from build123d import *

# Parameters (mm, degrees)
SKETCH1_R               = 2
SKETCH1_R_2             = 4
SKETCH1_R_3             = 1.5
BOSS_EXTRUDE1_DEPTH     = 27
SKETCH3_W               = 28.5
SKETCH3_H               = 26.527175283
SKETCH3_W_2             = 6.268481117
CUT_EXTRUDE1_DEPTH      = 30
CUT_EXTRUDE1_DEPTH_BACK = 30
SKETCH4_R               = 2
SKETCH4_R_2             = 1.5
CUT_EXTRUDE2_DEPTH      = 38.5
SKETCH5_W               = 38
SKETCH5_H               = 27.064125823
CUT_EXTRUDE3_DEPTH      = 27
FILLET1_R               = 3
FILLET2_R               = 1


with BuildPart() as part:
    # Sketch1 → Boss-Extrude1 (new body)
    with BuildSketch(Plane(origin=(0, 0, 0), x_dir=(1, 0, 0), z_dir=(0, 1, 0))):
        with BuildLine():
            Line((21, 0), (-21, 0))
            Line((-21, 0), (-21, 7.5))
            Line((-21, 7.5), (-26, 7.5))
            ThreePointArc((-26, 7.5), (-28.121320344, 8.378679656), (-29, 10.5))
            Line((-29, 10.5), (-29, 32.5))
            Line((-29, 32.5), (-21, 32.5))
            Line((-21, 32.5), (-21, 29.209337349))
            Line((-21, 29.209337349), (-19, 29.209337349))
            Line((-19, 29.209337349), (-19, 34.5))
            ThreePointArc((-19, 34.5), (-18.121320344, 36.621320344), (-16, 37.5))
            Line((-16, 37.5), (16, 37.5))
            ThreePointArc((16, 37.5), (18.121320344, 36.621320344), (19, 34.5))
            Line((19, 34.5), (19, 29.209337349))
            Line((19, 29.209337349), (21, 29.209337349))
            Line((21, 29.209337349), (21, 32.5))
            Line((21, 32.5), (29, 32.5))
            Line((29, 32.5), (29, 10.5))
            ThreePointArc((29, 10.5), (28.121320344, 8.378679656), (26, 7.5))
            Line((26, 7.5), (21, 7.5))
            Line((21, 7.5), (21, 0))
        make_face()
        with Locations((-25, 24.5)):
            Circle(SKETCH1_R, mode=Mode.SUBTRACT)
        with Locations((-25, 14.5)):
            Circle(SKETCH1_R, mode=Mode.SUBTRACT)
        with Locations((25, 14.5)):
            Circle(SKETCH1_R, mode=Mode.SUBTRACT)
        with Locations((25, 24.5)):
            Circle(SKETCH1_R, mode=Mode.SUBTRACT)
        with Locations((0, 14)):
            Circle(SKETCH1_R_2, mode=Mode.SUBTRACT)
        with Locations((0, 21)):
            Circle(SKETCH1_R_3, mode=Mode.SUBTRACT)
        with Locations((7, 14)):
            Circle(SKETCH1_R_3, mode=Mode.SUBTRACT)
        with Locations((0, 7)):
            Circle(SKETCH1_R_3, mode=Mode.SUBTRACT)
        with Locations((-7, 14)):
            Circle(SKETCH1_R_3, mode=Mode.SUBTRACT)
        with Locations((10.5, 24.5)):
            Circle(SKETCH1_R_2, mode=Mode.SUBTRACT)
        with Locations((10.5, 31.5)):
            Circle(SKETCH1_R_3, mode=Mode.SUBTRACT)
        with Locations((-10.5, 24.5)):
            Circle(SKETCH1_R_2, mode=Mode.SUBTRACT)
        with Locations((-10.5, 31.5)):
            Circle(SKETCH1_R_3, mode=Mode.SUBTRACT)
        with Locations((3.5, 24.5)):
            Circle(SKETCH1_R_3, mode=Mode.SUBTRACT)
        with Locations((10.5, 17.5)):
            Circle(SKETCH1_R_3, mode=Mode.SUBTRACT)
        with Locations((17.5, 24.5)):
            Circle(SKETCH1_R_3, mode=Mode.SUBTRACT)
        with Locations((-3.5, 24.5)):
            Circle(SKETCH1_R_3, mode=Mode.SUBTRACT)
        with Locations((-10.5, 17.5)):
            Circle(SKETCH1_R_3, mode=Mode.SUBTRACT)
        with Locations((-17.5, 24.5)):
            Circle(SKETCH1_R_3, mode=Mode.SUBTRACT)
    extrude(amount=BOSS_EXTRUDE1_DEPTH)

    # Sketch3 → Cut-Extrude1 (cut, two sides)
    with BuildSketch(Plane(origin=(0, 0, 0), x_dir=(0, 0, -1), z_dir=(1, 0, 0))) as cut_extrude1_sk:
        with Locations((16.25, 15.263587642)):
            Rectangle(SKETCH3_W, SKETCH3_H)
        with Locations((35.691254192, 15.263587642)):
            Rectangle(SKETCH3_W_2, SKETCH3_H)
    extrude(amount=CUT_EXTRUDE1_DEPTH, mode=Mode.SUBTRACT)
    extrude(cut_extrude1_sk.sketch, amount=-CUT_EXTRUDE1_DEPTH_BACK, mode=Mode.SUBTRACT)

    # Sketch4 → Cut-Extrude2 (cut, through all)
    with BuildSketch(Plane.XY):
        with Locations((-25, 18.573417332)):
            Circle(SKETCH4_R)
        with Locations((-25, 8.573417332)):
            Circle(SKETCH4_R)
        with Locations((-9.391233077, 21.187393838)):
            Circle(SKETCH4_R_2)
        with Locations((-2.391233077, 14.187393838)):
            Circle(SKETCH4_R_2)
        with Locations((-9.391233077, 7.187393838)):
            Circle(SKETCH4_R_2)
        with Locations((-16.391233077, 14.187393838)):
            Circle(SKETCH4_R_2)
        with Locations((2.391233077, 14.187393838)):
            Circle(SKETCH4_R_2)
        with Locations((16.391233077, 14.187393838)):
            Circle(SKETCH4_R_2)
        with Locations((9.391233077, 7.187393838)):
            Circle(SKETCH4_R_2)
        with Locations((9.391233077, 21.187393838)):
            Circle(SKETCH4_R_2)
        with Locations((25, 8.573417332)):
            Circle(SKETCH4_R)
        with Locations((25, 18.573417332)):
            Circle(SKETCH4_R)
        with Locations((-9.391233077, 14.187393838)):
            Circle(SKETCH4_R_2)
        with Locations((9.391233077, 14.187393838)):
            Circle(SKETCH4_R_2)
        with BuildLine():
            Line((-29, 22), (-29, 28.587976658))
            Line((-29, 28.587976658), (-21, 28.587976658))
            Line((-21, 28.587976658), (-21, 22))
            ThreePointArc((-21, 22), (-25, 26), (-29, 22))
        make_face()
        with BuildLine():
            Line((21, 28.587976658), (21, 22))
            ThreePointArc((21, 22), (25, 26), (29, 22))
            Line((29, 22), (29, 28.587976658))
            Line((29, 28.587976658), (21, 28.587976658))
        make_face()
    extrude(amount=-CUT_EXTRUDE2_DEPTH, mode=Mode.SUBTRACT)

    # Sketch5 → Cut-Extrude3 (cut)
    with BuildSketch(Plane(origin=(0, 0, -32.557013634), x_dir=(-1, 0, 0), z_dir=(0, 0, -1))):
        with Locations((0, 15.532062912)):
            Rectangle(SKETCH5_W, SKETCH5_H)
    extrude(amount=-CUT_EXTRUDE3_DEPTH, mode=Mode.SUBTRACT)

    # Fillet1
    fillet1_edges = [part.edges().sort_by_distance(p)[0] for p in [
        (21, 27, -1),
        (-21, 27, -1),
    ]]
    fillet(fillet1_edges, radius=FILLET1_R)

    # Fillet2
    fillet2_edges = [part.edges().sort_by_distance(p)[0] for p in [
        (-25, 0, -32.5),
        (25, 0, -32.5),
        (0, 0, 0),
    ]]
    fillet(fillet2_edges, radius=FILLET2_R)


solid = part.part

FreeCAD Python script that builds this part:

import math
import FreeCAD as App
import Part
import Sketcher
Q = App.Units.Quantity


def edges_at(feature, points):
    """Names of the edges that pass closest to the given points."""
    edges = feature.Shape.Edges
    near = lambda p: min(range(len(edges)), key=lambda i: edges[i].distToShape(Part.Vertex(*p))[0])
    return sorted({f"Edge{near(p) + 1}" for p in points})

doc = App.newDocument("Part")
body = doc.addObject("PartDesign::Body", "Body")

sketch1 = doc.addObject("Sketcher::SketchObject", "Sketch")
body.addObject(sketch1)
sketch1.AttachmentSupport = (doc.XZ_Plane, [""])
sketch1.MapMode = "FlatFace"
sketch1.addGeometry([
    Part.LineSegment(App.Vector(-21, 0, 0), App.Vector(21, 0, 0)),
    Part.LineSegment(App.Vector(21, 0, 0), App.Vector(21, -7.5, 0)),
    Part.LineSegment(App.Vector(21, -7.5, 0), App.Vector(26, -7.5, 0)),
    Part.ArcOfCircle(Part.Circle(App.Vector(26, -10.5, 0), App.Vector(0, 0, 1), 3), math.radians(0), math.radians(90)),
    Part.LineSegment(App.Vector(29, -10.5, 0), App.Vector(29, -32.5, 0)),
    Part.LineSegment(App.Vector(29, -32.5, 0), App.Vector(21, -32.5, 0)),
    Part.LineSegment(App.Vector(21, -32.5, 0), App.Vector(21, -29.2, 0)),
    Part.LineSegment(App.Vector(21, -29.2, 0), App.Vector(19, -29.2, 0)),
    Part.LineSegment(App.Vector(19, -29.2, 0), App.Vector(19, -34.5, 0)),
    Part.ArcOfCircle(Part.Circle(App.Vector(16, -34.5, 0), App.Vector(0, 0, 1), 3), math.radians(-90), math.radians(0)),
    Part.LineSegment(App.Vector(16, -37.5, 0), App.Vector(-16, -37.5, 0)),
    Part.ArcOfCircle(Part.Circle(App.Vector(-16, -34.5, 0), App.Vector(0, 0, 1), 3), math.radians(180), math.radians(270)),
    Part.LineSegment(App.Vector(-19, -34.5, 0), App.Vector(-19, -29.2, 0)),
    Part.LineSegment(App.Vector(-19, -29.2, 0), App.Vector(-21, -29.2, 0)),
    Part.LineSegment(App.Vector(-21, -29.2, 0), App.Vector(-21, -32.5, 0)),
    Part.LineSegment(App.Vector(-21, -32.5, 0), App.Vector(-29, -32.5, 0)),
    Part.LineSegment(App.Vector(-29, -32.5, 0), App.Vector(-29, -10.5, 0)),
    Part.ArcOfCircle(Part.Circle(App.Vector(-26, -10.5, 0), App.Vector(0, 0, 1), 3), math.radians(90), math.radians(180)),
    Part.LineSegment(App.Vector(-26, -7.5, 0), App.Vector(-21, -7.5, 0)),
    Part.LineSegment(App.Vector(-21, -7.5, 0), App.Vector(-21, 0, 0)),
    Part.Circle(App.Vector(25, -14.5, 0), App.Vector(0, 0, 1), 2),
    Part.Circle(App.Vector(7, -14, 0), App.Vector(0, 0, 1), 1.5),
    Part.Circle(App.Vector(10.5, -17.5, 0), App.Vector(0, 0, 1), 1.5),
    Part.Circle(App.Vector(0, -7, 0), App.Vector(0, 0, 1), 1.5),
    Part.Circle(App.Vector(0, -14, 0), App.Vector(0, 0, 1), 4),
    Part.Circle(App.Vector(-7, -14, 0), App.Vector(0, 0, 1), 1.5),
    Part.Circle(App.Vector(-10.5, -17.5, 0), App.Vector(0, 0, 1), 1.5),
    Part.Circle(App.Vector(-25, -14.5, 0), App.Vector(0, 0, 1), 2),
    Part.Circle(App.Vector(25, -24.5, 0), App.Vector(0, 0, 1), 2),
    Part.Circle(App.Vector(17.5, -24.5, 0), App.Vector(0, 0, 1), 1.5),
    Part.Circle(App.Vector(10.5, -24.5, 0), App.Vector(0, 0, 1), 4),
    Part.Circle(App.Vector(3.5, -24.5, 0), App.Vector(0, 0, 1), 1.5),
    Part.Circle(App.Vector(10.5, -31.5, 0), App.Vector(0, 0, 1), 1.5),
    Part.Circle(App.Vector(0, -21, 0), App.Vector(0, 0, 1), 1.5),
    Part.Circle(App.Vector(-3.5, -24.5, 0), App.Vector(0, 0, 1), 1.5),
    Part.Circle(App.Vector(-10.5, -24.5, 0), App.Vector(0, 0, 1), 4),
    Part.Circle(App.Vector(-17.5, -24.5, 0), App.Vector(0, 0, 1), 1.5),
    Part.Circle(App.Vector(-25, -24.5, 0), App.Vector(0, 0, 1), 2),
    Part.Circle(App.Vector(-10.5, -31.5, 0), App.Vector(0, 0, 1), 1.5),
], False)
sketch1.addConstraint([
    Sketcher.Constraint("Coincident", 0, 2, 1, 1),
    Sketcher.Constraint("Coincident", 1, 2, 2, 1),
    Sketcher.Constraint("Tangent", 2, 2, 3, 2),
    Sketcher.Constraint("Tangent", 3, 1, 4, 1),
    Sketcher.Constraint("Coincident", 4, 2, 5, 1),
    Sketcher.Constraint("Coincident", 5, 2, 6, 1),
    Sketcher.Constraint("Coincident", 6, 2, 7, 1),
    Sketcher.Constraint("Coincident", 7, 2, 8, 1),
    Sketcher.Constraint("Tangent", 8, 2, 9, 2),
    Sketcher.Constraint("Tangent", 9, 1, 10, 1),
    Sketcher.Constraint("Tangent", 10, 2, 11, 2),
    Sketcher.Constraint("Tangent", 11, 1, 12, 1),
    Sketcher.Constraint("Coincident", 12, 2, 13, 1),
    Sketcher.Constraint("Coincident", 13, 2, 14, 1),
    Sketcher.Constraint("Coincident", 14, 2, 15, 1),
    Sketcher.Constraint("Coincident", 15, 2, 16, 1),
    Sketcher.Constraint("Tangent", 16, 2, 17, 2),
    Sketcher.Constraint("Tangent", 17, 1, 18, 1),
    Sketcher.Constraint("Coincident", 18, 2, 19, 1),
    Sketcher.Constraint("Coincident", 19, 2, 0, 1),
    Sketcher.Constraint("Horizontal", 0),
    Sketcher.Constraint("Vertical", 1),
    Sketcher.Constraint("Horizontal", 2),
    Sketcher.Constraint("Vertical", 4),
    Sketcher.Constraint("Horizontal", 5),
    Sketcher.Constraint("Vertical", 6),
    Sketcher.Constraint("Horizontal", 7),
    Sketcher.Constraint("Vertical", 8),
    Sketcher.Constraint("Horizontal", 10),
    Sketcher.Constraint("Vertical", 12),
    Sketcher.Constraint("Horizontal", 13),
    Sketcher.Constraint("Vertical", 14),
    Sketcher.Constraint("Horizontal", 15),
    Sketcher.Constraint("Vertical", 16),
    Sketcher.Constraint("Horizontal", 18),
    Sketcher.Constraint("Vertical", 19),
    Sketcher.Constraint("Equal", 3, 9),
    Sketcher.Constraint("Equal", 9, 11),
    Sketcher.Constraint("Equal", 11, 17),
    Sketcher.Constraint("Equal", 21, 22),
    Sketcher.Constraint("Equal", 22, 23),
    Sketcher.Constraint("Equal", 23, 25),
    Sketcher.Constraint("Equal", 25, 26),
    Sketcher.Constraint("Equal", 20, 27),
    Sketcher.Constraint("Equal", 27, 28),
    Sketcher.Constraint("Equal", 26, 29),
    Sketcher.Constraint("Equal", 24, 30),
    Sketcher.Constraint("Equal", 29, 31),
    Sketcher.Constraint("Equal", 31, 32),
    Sketcher.Constraint("Equal", 32, 33),
    Sketcher.Constraint("Equal", 33, 34),
    Sketcher.Constraint("Equal", 30, 35),
    Sketcher.Constraint("Equal", 34, 36),
    Sketcher.Constraint("Equal", 28, 37),
    Sketcher.Constraint("Equal", 36, 38),
    Sketcher.Constraint("Symmetric", 0, 2, 19, 2, -1, 1),
    Sketcher.Constraint("Symmetric", 3, 3, 17, 3, -2),
    Sketcher.Constraint("Symmetric", 21, 3, 25, 3, -2),
    Sketcher.Constraint("Symmetric", 22, 3, 26, 3, -2),
    Sketcher.Constraint("Symmetric", 20, 3, 27, 3, -2),
    Sketcher.Constraint("Symmetric", 31, 3, 34, 3, -2),
    Sketcher.Constraint("Symmetric", 30, 3, 35, 3, -2),
    Sketcher.Constraint("Symmetric", 29, 3, 36, 3, -2),
    Sketcher.Constraint("Symmetric", 28, 3, 37, 3, -2),
    Sketcher.Constraint("Symmetric", 32, 3, 38, 3, -2),
    Sketcher.Constraint("Symmetric", 7, 2, 12, 2, -2),
    Sketcher.Constraint("Symmetric", 5, 2, 14, 2, -2),
    Sketcher.Constraint("PointOnObject", 23, 3, -2),
    Sketcher.Constraint("PointOnObject", 24, 3, -2),
    Sketcher.Constraint("PointOnObject", 33, 3, -2),
    Sketcher.Constraint("Horizontal", 21, 3, 24, 3),
    Sketcher.Constraint("Horizontal", 28, 3, 29, 3),
    Sketcher.Constraint("Horizontal", 29, 3, 30, 3),
    Sketcher.Constraint("Horizontal", 30, 3, 31, 3),
    Sketcher.Constraint("Vertical", 20, 3, 28, 3),
    Sketcher.Constraint("Vertical", 22, 3, 30, 3),
    Sketcher.Constraint("Vertical", 30, 3, 32, 3),
    Sketcher.Constraint("Vertical", 1, 2, 5, 2),
    Sketcher.Constraint("Diameter", 20, Q("4 mm")),
    Sketcher.Constraint("Diameter", 21, Q("3 mm")),
    Sketcher.Constraint("Diameter", 24, Q("8 mm")),
    Sketcher.Constraint("Radius", 3, Q("3 mm")),
    Sketcher.Constraint("DistanceX", 0, 1, 0, 2, Q("42 mm")),
    Sketcher.Constraint("DistanceX", 2, 1, 2, 2, Q("5 mm")),
    Sketcher.Constraint("DistanceX", 7, 2, 7, 1, Q("2 mm")),
    Sketcher.Constraint("DistanceY", 4, 2, 4, 1, Q("22 mm")),
    Sketcher.Constraint("DistanceY", 1, 2, 1, 1, Q("7.5 mm")),
    Sketcher.Constraint("DistanceX", -1, 1, 20, 3, Q("25 mm")),
    Sketcher.Constraint("DistanceX", -1, 1, 21, 3, Q("7 mm")),
    Sketcher.Constraint("DistanceY", 21, 3, -1, 1, Q("14 mm")),
    Sketcher.Constraint("DistanceY", 23, 3, -1, 1, Q("7 mm")),
    Sketcher.Constraint("DistanceY", 33, 3, -1, 1, Q("21 mm")),
    Sketcher.Constraint("DistanceY", 9, 3, 3, 3, Q("24 mm")),
    Sketcher.Constraint("DistanceY", 20, 3, 3, 3, Q("4 mm")),
    Sketcher.Constraint("DistanceY", 22, 3, 20, 3, Q("3 mm")),
    Sketcher.Constraint("DistanceY", 28, 3, 20, 3, Q("10 mm")),
    Sketcher.Constraint("DistanceX", 22, 3, 29, 3, Q("7 mm")),
    Sketcher.Constraint("DistanceX", 31, 3, 30, 3, Q("7 mm")),
    Sketcher.Constraint("DistanceY", 9, 3, 32, 3, Q("3 mm")),
    Sketcher.Constraint("DistanceX", 34, 3, 31, 3, Q("7 mm")),
    Sketcher.Constraint("DistanceY", 6, 1, 6, 2, Q("3.290663 mm")),
])
pad1 = doc.addObject("PartDesign::Pad", "Pad")
body.addObject(pad1)
pad1.Profile = sketch1
pad1.Length = 27
pad1.Reversed = True

sketch2 = doc.addObject("Sketcher::SketchObject", "Sketch001")
body.addObject(sketch2)
sketch2.AttachmentSupport = (doc.YZ_Plane, [""])
sketch2.MapMode = "FlatFace"
sketch2.addGeometry([
    Part.LineSegment(App.Vector(29, -2, 0), App.Vector(2, -2, 0)),
    Part.LineSegment(App.Vector(2, -2, 0), App.Vector(2, -30, 0)),
    Part.LineSegment(App.Vector(2, -30, 0), App.Vector(29, -30, 0)),
    Part.LineSegment(App.Vector(29, -30, 0), App.Vector(29, -2, 0)),
    Part.LineSegment(App.Vector(29, -33, 0), App.Vector(2, -33, 0)),
    Part.LineSegment(App.Vector(2, -33, 0), App.Vector(2, -39, 0)),
    Part.LineSegment(App.Vector(2, -39, 0), App.Vector(29, -39, 0)),
    Part.LineSegment(App.Vector(29, -39, 0), App.Vector(29, -33, 0)),
], False)
sketch2.addConstraint([
    Sketcher.Constraint("Coincident", 0, 2, 1, 1),
    Sketcher.Constraint("Coincident", 1, 2, 2, 1),
    Sketcher.Constraint("Coincident", 2, 2, 3, 1),
    Sketcher.Constraint("Coincident", 3, 2, 0, 1),
    Sketcher.Constraint("Coincident", 4, 2, 5, 1),
    Sketcher.Constraint("Coincident", 5, 2, 6, 1),
    Sketcher.Constraint("Coincident", 6, 2, 7, 1),
    Sketcher.Constraint("Coincident", 7, 2, 4, 1),
    Sketcher.Constraint("Horizontal", 0),
    Sketcher.Constraint("Vertical", 1),
    Sketcher.Constraint("Horizontal", 2),
    Sketcher.Constraint("Vertical", 3),
    Sketcher.Constraint("Horizontal", 4),
    Sketcher.Constraint("Vertical", 5),
    Sketcher.Constraint("Horizontal", 6),
    Sketcher.Constraint("Vertical", 7),
    Sketcher.Constraint("Vertical", 1, 2, 4, 2),
    Sketcher.Constraint("Vertical", 3, 2, 6, 2),
    Sketcher.Constraint("DistanceY", 1, 2, 1, 1, Q("28.5 mm")),
    Sketcher.Constraint("DistanceX", -1, 1, 0, 2, Q("2 mm")),
    Sketcher.Constraint("DistanceY", 0, 2, -1, 1, Q("2 mm")),
    Sketcher.Constraint("DistanceY", 5, 2, 5, 1, Q("6.268481 mm")),
    Sketcher.Constraint("DistanceX", 0, 2, 0, 1, Q("26.527175 mm")),
    Sketcher.Constraint("DistanceY", 4, 2, -1, 1, Q("32.557014 mm")),
])
pocket1 = doc.addObject("PartDesign::Pocket", "Pocket")
body.addObject(pocket1)
pocket1.Profile = sketch2
pocket1.Type = "ThroughAll"
pocket1.Midplane = True

sketch3 = doc.addObject("Sketcher::SketchObject", "Sketch002")
body.addObject(sketch3)
sketch3.AttachmentSupport = (doc.XY_Plane, [""])
sketch3.MapMode = "FlatFace"
sketch3.addGeometry([
    Part.Circle(App.Vector(-25, 18.6, 0), App.Vector(0, 0, 1), 2),
    Part.Circle(App.Vector(-25, 8.6, 0), App.Vector(0, 0, 1), 2),
    Part.Circle(App.Vector(-9.4, 21.2, 0), App.Vector(0, 0, 1), 1.5),
    Part.Circle(App.Vector(-2.4, 14.2, 0), App.Vector(0, 0, 1), 1.5),
    Part.Circle(App.Vector(-9.4, 7.2, 0), App.Vector(0, 0, 1), 1.5),
    Part.Circle(App.Vector(-16.4, 14.2, 0), App.Vector(0, 0, 1), 1.5),
    Part.Circle(App.Vector(2.4, 14.2, 0), App.Vector(0, 0, 1), 1.5),
    Part.Circle(App.Vector(16.4, 14.2, 0), App.Vector(0, 0, 1), 1.5),
    Part.Circle(App.Vector(9.4, 7.2, 0), App.Vector(0, 0, 1), 1.5),
    Part.Circle(App.Vector(9.4, 21.2, 0), App.Vector(0, 0, 1), 1.5),
    Part.Circle(App.Vector(25, 8.6, 0), App.Vector(0, 0, 1), 2),
    Part.Circle(App.Vector(25, 18.6, 0), App.Vector(0, 0, 1), 2),
    Part.Circle(App.Vector(-9.4, 14.2, 0), App.Vector(0, 0, 1), 1.5),
    Part.Circle(App.Vector(9.4, 14.2, 0), App.Vector(0, 0, 1), 1.5),
    Part.LineSegment(App.Vector(-29, 28.6, 0), App.Vector(-29, 22, 0)),
    Part.ArcOfCircle(Part.Circle(App.Vector(-25, 22, 0), App.Vector(0, 0, 1), 4), math.radians(0), math.radians(180)),
    Part.LineSegment(App.Vector(-21, 22, 0), App.Vector(-21, 28.6, 0)),
    Part.LineSegment(App.Vector(-21, 28.6, 0), App.Vector(-29, 28.6, 0)),
    Part.LineSegment(App.Vector(21, 28.6, 0), App.Vector(21, 22, 0)),
    Part.ArcOfCircle(Part.Circle(App.Vector(25, 22, 0), App.Vector(0, 0, 1), 4), math.radians(0), math.radians(180)),
    Part.LineSegment(App.Vector(29, 22, 0), App.Vector(29, 28.6, 0)),
    Part.LineSegment(App.Vector(29, 28.6, 0), App.Vector(21, 28.6, 0)),
], False)
sketch3.addConstraint([
    Sketcher.Constraint("Tangent", 14, 2, 15, 2),
    Sketcher.Constraint("Tangent", 15, 1, 16, 1),
    Sketcher.Constraint("Coincident", 16, 2, 17, 1),
    Sketcher.Constraint("Coincident", 17, 2, 14, 1),
    Sketcher.Constraint("Tangent", 18, 2, 19, 2),
    Sketcher.Constraint("Tangent", 19, 1, 20, 1),
    Sketcher.Constraint("Coincident", 20, 2, 21, 1),
    Sketcher.Constraint("Coincident", 21, 2, 18, 1),
    Sketcher.Constraint("Vertical", 14),
    Sketcher.Constraint("Vertical", 16),
    Sketcher.Constraint("Horizontal", 17),
    Sketcher.Constraint("Vertical", 18),
    Sketcher.Constraint("Vertical", 20),
    Sketcher.Constraint("Horizontal", 21),
    Sketcher.Constraint("Equal", 0, 1),
    Sketcher.Constraint("Equal", 2, 3),
    Sketcher.Constraint("Equal", 3, 4),
    Sketcher.Constraint("Equal", 4, 5),
    Sketcher.Constraint("Equal", 5, 6),
    Sketcher.Constraint("Equal", 6, 7),
    Sketcher.Constraint("Equal", 7, 8),
    Sketcher.Constraint("Equal", 8, 9),
    Sketcher.Constraint("Equal", 1, 10),
    Sketcher.Constraint("Equal", 10, 11),
    Sketcher.Constraint("Equal", 9, 12),
    Sketcher.Constraint("Equal", 12, 13),
    Sketcher.Constraint("Equal", 15, 19),
    Sketcher.Constraint("Symmetric", 3, 3, 6, 3, -2),
    Sketcher.Constraint("Symmetric", 5, 3, 7, 3, -2),
    Sketcher.Constraint("Symmetric", 4, 3, 8, 3, -2),
    Sketcher.Constraint("Symmetric", 2, 3, 9, 3, -2),
    Sketcher.Constraint("Symmetric", 1, 3, 10, 3, -2),
    Sketcher.Constraint("Symmetric", 0, 3, 11, 3, -2),
    Sketcher.Constraint("Symmetric", 12, 3, 13, 3, -2),
    Sketcher.Constraint("Symmetric", 15, 3, 19, 3, -2),
    Sketcher.Constraint("Horizontal", 3, 3, 5, 3),
    Sketcher.Constraint("Horizontal", 7, 3, 12, 3),
    Sketcher.Constraint("Horizontal", 17, 2, 20, 2),
    Sketcher.Constraint("Vertical", 0, 3, 1, 3),
    Sketcher.Constraint("Vertical", 2, 3, 4, 3),
    Sketcher.Constraint("Vertical", 4, 3, 12, 3),
    Sketcher.Constraint("Vertical", 1, 3, 15, 3),
    Sketcher.Constraint("Diameter", 0, Q("4 mm")),
    Sketcher.Constraint("Diameter", 2, Q("3 mm")),
    Sketcher.Constraint("Radius", 15, Q("4 mm")),
    Sketcher.Constraint("DistanceX", 0, 3, -1, 1, Q("25 mm")),
    Sketcher.Constraint("DistanceY", -1, 1, 15, 3, Q("22 mm")),
    Sketcher.Constraint("DistanceY", 1, 3, 0, 3, Q("10 mm")),
    Sketcher.Constraint("DistanceX", 2, 3, 3, 3, Q("7 mm")),
    Sketcher.Constraint("DistanceY", 3, 3, 2, 3, Q("7 mm")),
    Sketcher.Constraint("DistanceY", 4, 3, 3, 3, Q("7 mm")),
    Sketcher.Constraint("DistanceX", 5, 3, 2, 3, Q("7 mm")),
    Sketcher.Constraint("DistanceY", 14, 2, 14, 1, Q("6.587977 mm")),
    Sketcher.Constraint("DistanceY", 0, 3, 16, 2, Q("10.014559 mm")),
    Sketcher.Constraint("DistanceX", 2, 3, -1, 1, Q("9.391233 mm")),
    Sketcher.Constraint("DistanceY", -1, 1, 2, 3, Q("21.187394 mm")),
])
pocket2 = doc.addObject("PartDesign::Pocket", "Pocket001")
body.addObject(pocket2)
pocket2.Profile = sketch3
pocket2.Type = "ThroughAll"

sketch4 = doc.addObject("Sketcher::SketchObject", "Sketch003")
body.addObject(sketch4)
sketch4.AttachmentSupport = (doc.XY_Plane, [""])
sketch4.MapMode = "FlatFace"
sketch4.AttachmentOffset = App.Placement(App.Vector(0, 0, -32.557014), App.Rotation())
sketch4.addGeometry([
    Part.LineSegment(App.Vector(19, 29, 0), App.Vector(19, 2, 0)),
    Part.LineSegment(App.Vector(19, 2, 0), App.Vector(-19, 2, 0)),
    Part.LineSegment(App.Vector(-19, 2, 0), App.Vector(-19, 29, 0)),
    Part.LineSegment(App.Vector(-19, 29, 0), App.Vector(19, 29, 0)),
], False)
sketch4.addConstraint([
    Sketcher.Constraint("Coincident", 0, 2, 1, 1),
    Sketcher.Constraint("Coincident", 1, 2, 2, 1),
    Sketcher.Constraint("Coincident", 2, 2, 3, 1),
    Sketcher.Constraint("Coincident", 3, 2, 0, 1),
    Sketcher.Constraint("Vertical", 0),
    Sketcher.Constraint("Horizontal", 1),
    Sketcher.Constraint("Vertical", 2),
    Sketcher.Constraint("Horizontal", 3),
    Sketcher.Constraint("DistanceX", 1, 2, 1, 1, Q("38 mm")),
    Sketcher.Constraint("DistanceX", -1, 1, 0, 2, Q("19 mm")),
    Sketcher.Constraint("DistanceY", -1, 1, 0, 2, Q("2 mm")),
    Sketcher.Constraint("DistanceY", 0, 2, 0, 1, Q("27.064126 mm")),
])
pocket3 = doc.addObject("PartDesign::Pocket", "Pocket002")
body.addObject(pocket3)
pocket3.Profile = sketch4
pocket3.Length = 27
pocket3.Reversed = True
doc.recompute()

fillet = doc.addObject("PartDesign::Fillet", "Fillet")
body.addObject(fillet)
fillet.Base = (pocket3, edges_at(pocket3, [(21, 27, -1), (-21, 27, -1)]))
fillet.Radius = 3
doc.recompute()

fillet2 = doc.addObject("PartDesign::Fillet", "Fillet001")
body.addObject(fillet2)
fillet2.Base = (fillet, edges_at(fillet, [(-25, 0, -32.5), (25, 0, -32.5), (0, 0, 0)]))
fillet2.Radius = 1

doc.recompute()
